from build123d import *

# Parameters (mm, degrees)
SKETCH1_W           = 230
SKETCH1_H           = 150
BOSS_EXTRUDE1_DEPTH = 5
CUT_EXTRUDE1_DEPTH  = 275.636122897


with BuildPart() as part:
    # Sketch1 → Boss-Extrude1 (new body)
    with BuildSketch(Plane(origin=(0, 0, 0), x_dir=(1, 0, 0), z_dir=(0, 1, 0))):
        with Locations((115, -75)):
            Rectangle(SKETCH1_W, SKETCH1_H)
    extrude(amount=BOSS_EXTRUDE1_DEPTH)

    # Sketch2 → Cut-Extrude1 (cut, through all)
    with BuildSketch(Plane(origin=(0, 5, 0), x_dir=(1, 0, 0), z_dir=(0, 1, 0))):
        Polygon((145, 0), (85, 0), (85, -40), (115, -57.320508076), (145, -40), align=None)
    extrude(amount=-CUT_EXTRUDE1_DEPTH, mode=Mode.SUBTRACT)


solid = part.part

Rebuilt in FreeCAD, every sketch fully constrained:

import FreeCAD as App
import Part
import Sketcher
from FreeCAD import Vector
Q = App.Units.Quantity


def add_polygon(sketch, points):
    """Adds a closed chain of lines whose ends are joined by coincident constraints."""
    first, n = sketch.GeometryCount, len(points)
    for a, b in zip(points, points[1:] + points[:1]):
        sketch.addGeometry(Part.LineSegment(App.Vector(*a, 0), App.Vector(*b, 0)), False)
    for i in range(n):
        sketch.addConstraint(Sketcher.Constraint("Coincident", first + i, 2, first + (i + 1) % n, 1))

doc = App.newDocument("Part")
body = doc.addObject("PartDesign::Body", "Body")

sketch1 = body.newObject("Sketcher::SketchObject", "Sketch")
sketch1.AttachmentSupport = (doc.getObject("XZ_Plane"), [""])
sketch1.MapMode = "FlatFace"
add_polygon(sketch1, [(0, 0), (0, 150), (230, 150), (230, 0)])
sketch1.addConstraint([
    Sketcher.Constraint("Vertical", 0),
    Sketcher.Constraint("Horizontal", 1),
    Sketcher.Constraint("Vertical", 2),
    Sketcher.Constraint("Horizontal", 3),
    Sketcher.Constraint("Coincident", 3, 2, -1, 1),
    Sketcher.Constraint("DistanceX", 1, 1, 1, 2, Q("230 mm")),
    Sketcher.Constraint("DistanceY", 0, 1, 0, 2, Q("150 mm")),
])
pad1 = body.newObject("PartDesign::Pad", "Pad")
pad1.Profile = sketch1
pad1.Length = 5
pad1.Reversed = True

sketch2 = body.newObject("Sketcher::SketchObject", "Sketch001")
sketch2.AttachmentSupport = (doc.getObject("XZ_Plane"), [""])
sketch2.MapMode = "FlatFace"
sketch2.AttachmentOffset = App.Placement(Vector(0, 0, -5), App.Rotation())
add_polygon(sketch2, [(145, 0), (85, 0), (85, 40), (115, 57), (145, 40)])
sketch2.addConstraint([
    Sketcher.Constraint("Horizontal", 0),
    Sketcher.Constraint("Vertical", 1),
    Sketcher.Constraint("Vertical", 4),
    Sketcher.Constraint("PointOnObject", 0, 2, -1),
    Sketcher.Constraint("Horizontal", 1, 2, 3, 2),
    Sketcher.Constraint("Equal", 2, 3),
    Sketcher.Constraint("DistanceX", 0, 2, 0, 1, Q("60 mm")),
    Sketcher.Constraint("DistanceY", 1, 1, 1, 2, Q("40 mm")),
    Sketcher.Constraint("Angle", 2, Q("30 deg")),
    Sketcher.Constraint("DistanceX", -1, 1, 0, 2, Q("85 mm")),
])
pocket1 = body.newObject("PartDesign::Pocket", "Pocket")
pocket1.Profile = sketch2
pocket1.Type = "ThroughAll"
pocket1.Reversed = True

doc.recompute()
